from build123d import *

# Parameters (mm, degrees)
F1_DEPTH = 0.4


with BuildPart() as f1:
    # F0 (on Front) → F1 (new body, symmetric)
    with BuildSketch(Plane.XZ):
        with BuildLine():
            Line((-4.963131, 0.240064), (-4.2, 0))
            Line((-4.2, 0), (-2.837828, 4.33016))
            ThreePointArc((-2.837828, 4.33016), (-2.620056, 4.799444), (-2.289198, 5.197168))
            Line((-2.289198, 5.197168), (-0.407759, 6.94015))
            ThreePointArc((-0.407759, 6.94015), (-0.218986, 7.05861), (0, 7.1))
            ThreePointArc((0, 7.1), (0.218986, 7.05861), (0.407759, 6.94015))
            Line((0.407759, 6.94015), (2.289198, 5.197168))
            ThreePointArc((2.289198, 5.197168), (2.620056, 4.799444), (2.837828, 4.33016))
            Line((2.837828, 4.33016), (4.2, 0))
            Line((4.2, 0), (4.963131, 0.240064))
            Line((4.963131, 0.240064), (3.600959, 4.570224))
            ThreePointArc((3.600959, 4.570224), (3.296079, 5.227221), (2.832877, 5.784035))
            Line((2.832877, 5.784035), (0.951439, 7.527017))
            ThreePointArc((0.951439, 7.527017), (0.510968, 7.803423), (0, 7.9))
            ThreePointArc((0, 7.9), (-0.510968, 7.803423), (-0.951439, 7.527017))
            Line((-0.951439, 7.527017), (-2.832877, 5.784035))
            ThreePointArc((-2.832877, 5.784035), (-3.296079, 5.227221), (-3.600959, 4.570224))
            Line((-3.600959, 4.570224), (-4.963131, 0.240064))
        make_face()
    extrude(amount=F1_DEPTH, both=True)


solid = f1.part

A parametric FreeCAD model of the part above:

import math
import FreeCAD as App
import Part
import Sketcher

V = App.Vector
Q = App.Units.Quantity

doc = App.newDocument("Part")
body = doc.addObject("PartDesign::Body", "Body")

# Sketch on XZ plane
sketch1 = body.newObject("Sketcher::SketchObject", "Sketch")
sketch1.AttachmentSupport = (doc.getObject("XZ_Plane"), [""])
sketch1.MapMode = "FlatFace"
sketch1.addGeometry([
    Part.LineSegment(V(-4.96, 0.24, 0), V(-4.2, 0, 0)),  # 0
    Part.LineSegment(V(-4.2, 0, 0), V(-2.84, 4.33, 0)),  # 1
    Part.ArcOfCircle(Part.Circle(V(-0.93, 3.73, 0), V(0, 0, 1), 2), math.radians(133), math.radians(163)),  # 2
    Part.LineSegment(V(-2.29, 5.2, 0), V(-0.41, 6.94, 0)),  # 3
    Part.ArcOfCircle(Part.Circle(V(0, 6.5, 0), V(0, 0, 1), 0.6), math.radians(90), math.radians(133)),  # 4
    Part.ArcOfCircle(Part.Circle(V(0, 6.5, 0), V(0, 0, 1), 0.6), math.radians(47), math.radians(90)),  # 5
    Part.LineSegment(V(0.41, 6.94, 0), V(2.29, 5.2, 0)),  # 6
    Part.ArcOfCircle(Part.Circle(V(0.93, 3.73, 0), V(0, 0, 1), 2), math.radians(17), math.radians(47)),  # 7
    Part.LineSegment(V(2.84, 4.33, 0), V(4.2, 0, 0)),  # 8
    Part.LineSegment(V(4.2, 0, 0), V(4.96, 0.24, 0)),  # 9
    Part.LineSegment(V(4.96, 0.24, 0), V(3.6, 4.57, 0)),  # 10
    Part.ArcOfCircle(Part.Circle(V(0.93, 3.73, 0), V(0, 0, 1), 2.8), math.radians(17), math.radians(47)),  # 11
    Part.LineSegment(V(2.83, 5.78, 0), V(0.95, 7.53, 0)),  # 12
    Part.ArcOfCircle(Part.Circle(V(0, 6.5, 0), V(0, 0, 1), 1.4), math.radians(47), math.radians(90)),  # 13
    Part.ArcOfCircle(Part.Circle(V(0, 6.5, 0), V(0, 0, 1), 1.4), math.radians(90), math.radians(133)),  # 14
    Part.LineSegment(V(-0.95, 7.53, 0), V(-2.83, 5.78, 0)),  # 15
    Part.ArcOfCircle(Part.Circle(V(-0.93, 3.73, 0), V(0, 0, 1), 2.8), math.radians(133), math.radians(163)),  # 16
    Part.LineSegment(V(-3.6, 4.57, 0), V(-4.96, 0.24, 0)),  # 17
], False)
sketch1.addConstraint([
    Sketcher.Constraint("Coincident", 0, 2, 1, 1),
    Sketcher.Constraint("Tangent", 1, 2, 2, 2),
    Sketcher.Constraint("Tangent", 2, 1, 3, 1),
    Sketcher.Constraint("Coincident", 3, 2, 4, 2),
    Sketcher.Constraint("Coincident", 4, 1, 5, 2),
    Sketcher.Constraint("Coincident", 5, 1, 6, 1),
    Sketcher.Constraint("Tangent", 6, 2, 7, 2),
    Sketcher.Constraint("Tangent", 7, 1, 8, 1),
    Sketcher.Constraint("Coincident", 8, 2, 9, 1),
    Sketcher.Constraint("Coincident", 9, 2, 10, 1),
    Sketcher.Constraint("Tangent", 10, 2, 11, 1),
    Sketcher.Constraint("Tangent", 11, 2, 12, 1),
    Sketcher.Constraint("Tangent", 12, 2, 13, 1),
    Sketcher.Constraint("Tangent", 13, 2, 14, 1),
    Sketcher.Constraint("Tangent", 14, 2, 15, 1),
    Sketcher.Constraint("Tangent", 15, 2, 16, 1),
    Sketcher.Constraint("Tangent", 16, 2, 17, 1),
    Sketcher.Constraint("Coincident", 17, 2, 0, 1),
    Sketcher.Constraint("Coincident", 5, 3, 4, 3),
    Sketcher.Constraint("Coincident", 13, 3, 4, 3),
    Sketcher.Constraint("Equal", 2, 7),
    Sketcher.Constraint("Equal", 13, 14),
    Sketcher.Constraint("Equal", 11, 16),
    Sketcher.Constraint("Symmetric", 0, 2, 8, 2, -1, 1),
    Sketcher.Constraint("Symmetric", 2, 3, 7, 3, -2),
    Sketcher.Constraint("Symmetric", 11, 3, 16, 3, -2),
    Sketcher.Constraint("Symmetric", 3, 2, 5, 1, -2),
    Sketcher.Constraint("Symmetric", 9, 2, 17, 2, -2),
    Sketcher.Constraint("PointOnObject", 0, 2, -1),
    Sketcher.Constraint("PointOnObject", 4, 1, -2),
    Sketcher.Constraint("PointOnObject", 13, 2, -2),
    Sketcher.Constraint("Perpendicular", 0, 1),
    Sketcher.Constraint("Perpendicular", 9, 10),
    Sketcher.Constraint("Parallel", 6, 12),
    Sketcher.Constraint("Equal", 8, 10),
    Sketcher.Constraint("Equal", 6, 12),
    Sketcher.Constraint("Radius", 13, Q("1.400001 mm")),
    Sketcher.Constraint("Distance", 0, Q("0.8 mm")),
    Sketcher.Constraint("DistanceY", -1, 1, 13, 3, Q("6.499999 mm")),
    Sketcher.Constraint("DistanceX", 0, 2, -1, 1, Q("4.2 mm")),
    Sketcher.Constraint("DistanceY", -1, 1, 4, 1, Q("7.1 mm")),
    Sketcher.Constraint("DistanceX", 2, 3, 11, 3, Q("1.86 mm")),
    Sketcher.Constraint("DistanceY", 11, 3, 5, 3, Q("2.77 mm")),
    Sketcher.Constraint("Radius", 2, Q("2.000005 mm")),
])
pad1 = body.newObject("PartDesign::Pad", "Pad")
pad1.Profile = sketch1
pad1.Length = 0.8
pad1.Midplane = True

doc.recompute()
